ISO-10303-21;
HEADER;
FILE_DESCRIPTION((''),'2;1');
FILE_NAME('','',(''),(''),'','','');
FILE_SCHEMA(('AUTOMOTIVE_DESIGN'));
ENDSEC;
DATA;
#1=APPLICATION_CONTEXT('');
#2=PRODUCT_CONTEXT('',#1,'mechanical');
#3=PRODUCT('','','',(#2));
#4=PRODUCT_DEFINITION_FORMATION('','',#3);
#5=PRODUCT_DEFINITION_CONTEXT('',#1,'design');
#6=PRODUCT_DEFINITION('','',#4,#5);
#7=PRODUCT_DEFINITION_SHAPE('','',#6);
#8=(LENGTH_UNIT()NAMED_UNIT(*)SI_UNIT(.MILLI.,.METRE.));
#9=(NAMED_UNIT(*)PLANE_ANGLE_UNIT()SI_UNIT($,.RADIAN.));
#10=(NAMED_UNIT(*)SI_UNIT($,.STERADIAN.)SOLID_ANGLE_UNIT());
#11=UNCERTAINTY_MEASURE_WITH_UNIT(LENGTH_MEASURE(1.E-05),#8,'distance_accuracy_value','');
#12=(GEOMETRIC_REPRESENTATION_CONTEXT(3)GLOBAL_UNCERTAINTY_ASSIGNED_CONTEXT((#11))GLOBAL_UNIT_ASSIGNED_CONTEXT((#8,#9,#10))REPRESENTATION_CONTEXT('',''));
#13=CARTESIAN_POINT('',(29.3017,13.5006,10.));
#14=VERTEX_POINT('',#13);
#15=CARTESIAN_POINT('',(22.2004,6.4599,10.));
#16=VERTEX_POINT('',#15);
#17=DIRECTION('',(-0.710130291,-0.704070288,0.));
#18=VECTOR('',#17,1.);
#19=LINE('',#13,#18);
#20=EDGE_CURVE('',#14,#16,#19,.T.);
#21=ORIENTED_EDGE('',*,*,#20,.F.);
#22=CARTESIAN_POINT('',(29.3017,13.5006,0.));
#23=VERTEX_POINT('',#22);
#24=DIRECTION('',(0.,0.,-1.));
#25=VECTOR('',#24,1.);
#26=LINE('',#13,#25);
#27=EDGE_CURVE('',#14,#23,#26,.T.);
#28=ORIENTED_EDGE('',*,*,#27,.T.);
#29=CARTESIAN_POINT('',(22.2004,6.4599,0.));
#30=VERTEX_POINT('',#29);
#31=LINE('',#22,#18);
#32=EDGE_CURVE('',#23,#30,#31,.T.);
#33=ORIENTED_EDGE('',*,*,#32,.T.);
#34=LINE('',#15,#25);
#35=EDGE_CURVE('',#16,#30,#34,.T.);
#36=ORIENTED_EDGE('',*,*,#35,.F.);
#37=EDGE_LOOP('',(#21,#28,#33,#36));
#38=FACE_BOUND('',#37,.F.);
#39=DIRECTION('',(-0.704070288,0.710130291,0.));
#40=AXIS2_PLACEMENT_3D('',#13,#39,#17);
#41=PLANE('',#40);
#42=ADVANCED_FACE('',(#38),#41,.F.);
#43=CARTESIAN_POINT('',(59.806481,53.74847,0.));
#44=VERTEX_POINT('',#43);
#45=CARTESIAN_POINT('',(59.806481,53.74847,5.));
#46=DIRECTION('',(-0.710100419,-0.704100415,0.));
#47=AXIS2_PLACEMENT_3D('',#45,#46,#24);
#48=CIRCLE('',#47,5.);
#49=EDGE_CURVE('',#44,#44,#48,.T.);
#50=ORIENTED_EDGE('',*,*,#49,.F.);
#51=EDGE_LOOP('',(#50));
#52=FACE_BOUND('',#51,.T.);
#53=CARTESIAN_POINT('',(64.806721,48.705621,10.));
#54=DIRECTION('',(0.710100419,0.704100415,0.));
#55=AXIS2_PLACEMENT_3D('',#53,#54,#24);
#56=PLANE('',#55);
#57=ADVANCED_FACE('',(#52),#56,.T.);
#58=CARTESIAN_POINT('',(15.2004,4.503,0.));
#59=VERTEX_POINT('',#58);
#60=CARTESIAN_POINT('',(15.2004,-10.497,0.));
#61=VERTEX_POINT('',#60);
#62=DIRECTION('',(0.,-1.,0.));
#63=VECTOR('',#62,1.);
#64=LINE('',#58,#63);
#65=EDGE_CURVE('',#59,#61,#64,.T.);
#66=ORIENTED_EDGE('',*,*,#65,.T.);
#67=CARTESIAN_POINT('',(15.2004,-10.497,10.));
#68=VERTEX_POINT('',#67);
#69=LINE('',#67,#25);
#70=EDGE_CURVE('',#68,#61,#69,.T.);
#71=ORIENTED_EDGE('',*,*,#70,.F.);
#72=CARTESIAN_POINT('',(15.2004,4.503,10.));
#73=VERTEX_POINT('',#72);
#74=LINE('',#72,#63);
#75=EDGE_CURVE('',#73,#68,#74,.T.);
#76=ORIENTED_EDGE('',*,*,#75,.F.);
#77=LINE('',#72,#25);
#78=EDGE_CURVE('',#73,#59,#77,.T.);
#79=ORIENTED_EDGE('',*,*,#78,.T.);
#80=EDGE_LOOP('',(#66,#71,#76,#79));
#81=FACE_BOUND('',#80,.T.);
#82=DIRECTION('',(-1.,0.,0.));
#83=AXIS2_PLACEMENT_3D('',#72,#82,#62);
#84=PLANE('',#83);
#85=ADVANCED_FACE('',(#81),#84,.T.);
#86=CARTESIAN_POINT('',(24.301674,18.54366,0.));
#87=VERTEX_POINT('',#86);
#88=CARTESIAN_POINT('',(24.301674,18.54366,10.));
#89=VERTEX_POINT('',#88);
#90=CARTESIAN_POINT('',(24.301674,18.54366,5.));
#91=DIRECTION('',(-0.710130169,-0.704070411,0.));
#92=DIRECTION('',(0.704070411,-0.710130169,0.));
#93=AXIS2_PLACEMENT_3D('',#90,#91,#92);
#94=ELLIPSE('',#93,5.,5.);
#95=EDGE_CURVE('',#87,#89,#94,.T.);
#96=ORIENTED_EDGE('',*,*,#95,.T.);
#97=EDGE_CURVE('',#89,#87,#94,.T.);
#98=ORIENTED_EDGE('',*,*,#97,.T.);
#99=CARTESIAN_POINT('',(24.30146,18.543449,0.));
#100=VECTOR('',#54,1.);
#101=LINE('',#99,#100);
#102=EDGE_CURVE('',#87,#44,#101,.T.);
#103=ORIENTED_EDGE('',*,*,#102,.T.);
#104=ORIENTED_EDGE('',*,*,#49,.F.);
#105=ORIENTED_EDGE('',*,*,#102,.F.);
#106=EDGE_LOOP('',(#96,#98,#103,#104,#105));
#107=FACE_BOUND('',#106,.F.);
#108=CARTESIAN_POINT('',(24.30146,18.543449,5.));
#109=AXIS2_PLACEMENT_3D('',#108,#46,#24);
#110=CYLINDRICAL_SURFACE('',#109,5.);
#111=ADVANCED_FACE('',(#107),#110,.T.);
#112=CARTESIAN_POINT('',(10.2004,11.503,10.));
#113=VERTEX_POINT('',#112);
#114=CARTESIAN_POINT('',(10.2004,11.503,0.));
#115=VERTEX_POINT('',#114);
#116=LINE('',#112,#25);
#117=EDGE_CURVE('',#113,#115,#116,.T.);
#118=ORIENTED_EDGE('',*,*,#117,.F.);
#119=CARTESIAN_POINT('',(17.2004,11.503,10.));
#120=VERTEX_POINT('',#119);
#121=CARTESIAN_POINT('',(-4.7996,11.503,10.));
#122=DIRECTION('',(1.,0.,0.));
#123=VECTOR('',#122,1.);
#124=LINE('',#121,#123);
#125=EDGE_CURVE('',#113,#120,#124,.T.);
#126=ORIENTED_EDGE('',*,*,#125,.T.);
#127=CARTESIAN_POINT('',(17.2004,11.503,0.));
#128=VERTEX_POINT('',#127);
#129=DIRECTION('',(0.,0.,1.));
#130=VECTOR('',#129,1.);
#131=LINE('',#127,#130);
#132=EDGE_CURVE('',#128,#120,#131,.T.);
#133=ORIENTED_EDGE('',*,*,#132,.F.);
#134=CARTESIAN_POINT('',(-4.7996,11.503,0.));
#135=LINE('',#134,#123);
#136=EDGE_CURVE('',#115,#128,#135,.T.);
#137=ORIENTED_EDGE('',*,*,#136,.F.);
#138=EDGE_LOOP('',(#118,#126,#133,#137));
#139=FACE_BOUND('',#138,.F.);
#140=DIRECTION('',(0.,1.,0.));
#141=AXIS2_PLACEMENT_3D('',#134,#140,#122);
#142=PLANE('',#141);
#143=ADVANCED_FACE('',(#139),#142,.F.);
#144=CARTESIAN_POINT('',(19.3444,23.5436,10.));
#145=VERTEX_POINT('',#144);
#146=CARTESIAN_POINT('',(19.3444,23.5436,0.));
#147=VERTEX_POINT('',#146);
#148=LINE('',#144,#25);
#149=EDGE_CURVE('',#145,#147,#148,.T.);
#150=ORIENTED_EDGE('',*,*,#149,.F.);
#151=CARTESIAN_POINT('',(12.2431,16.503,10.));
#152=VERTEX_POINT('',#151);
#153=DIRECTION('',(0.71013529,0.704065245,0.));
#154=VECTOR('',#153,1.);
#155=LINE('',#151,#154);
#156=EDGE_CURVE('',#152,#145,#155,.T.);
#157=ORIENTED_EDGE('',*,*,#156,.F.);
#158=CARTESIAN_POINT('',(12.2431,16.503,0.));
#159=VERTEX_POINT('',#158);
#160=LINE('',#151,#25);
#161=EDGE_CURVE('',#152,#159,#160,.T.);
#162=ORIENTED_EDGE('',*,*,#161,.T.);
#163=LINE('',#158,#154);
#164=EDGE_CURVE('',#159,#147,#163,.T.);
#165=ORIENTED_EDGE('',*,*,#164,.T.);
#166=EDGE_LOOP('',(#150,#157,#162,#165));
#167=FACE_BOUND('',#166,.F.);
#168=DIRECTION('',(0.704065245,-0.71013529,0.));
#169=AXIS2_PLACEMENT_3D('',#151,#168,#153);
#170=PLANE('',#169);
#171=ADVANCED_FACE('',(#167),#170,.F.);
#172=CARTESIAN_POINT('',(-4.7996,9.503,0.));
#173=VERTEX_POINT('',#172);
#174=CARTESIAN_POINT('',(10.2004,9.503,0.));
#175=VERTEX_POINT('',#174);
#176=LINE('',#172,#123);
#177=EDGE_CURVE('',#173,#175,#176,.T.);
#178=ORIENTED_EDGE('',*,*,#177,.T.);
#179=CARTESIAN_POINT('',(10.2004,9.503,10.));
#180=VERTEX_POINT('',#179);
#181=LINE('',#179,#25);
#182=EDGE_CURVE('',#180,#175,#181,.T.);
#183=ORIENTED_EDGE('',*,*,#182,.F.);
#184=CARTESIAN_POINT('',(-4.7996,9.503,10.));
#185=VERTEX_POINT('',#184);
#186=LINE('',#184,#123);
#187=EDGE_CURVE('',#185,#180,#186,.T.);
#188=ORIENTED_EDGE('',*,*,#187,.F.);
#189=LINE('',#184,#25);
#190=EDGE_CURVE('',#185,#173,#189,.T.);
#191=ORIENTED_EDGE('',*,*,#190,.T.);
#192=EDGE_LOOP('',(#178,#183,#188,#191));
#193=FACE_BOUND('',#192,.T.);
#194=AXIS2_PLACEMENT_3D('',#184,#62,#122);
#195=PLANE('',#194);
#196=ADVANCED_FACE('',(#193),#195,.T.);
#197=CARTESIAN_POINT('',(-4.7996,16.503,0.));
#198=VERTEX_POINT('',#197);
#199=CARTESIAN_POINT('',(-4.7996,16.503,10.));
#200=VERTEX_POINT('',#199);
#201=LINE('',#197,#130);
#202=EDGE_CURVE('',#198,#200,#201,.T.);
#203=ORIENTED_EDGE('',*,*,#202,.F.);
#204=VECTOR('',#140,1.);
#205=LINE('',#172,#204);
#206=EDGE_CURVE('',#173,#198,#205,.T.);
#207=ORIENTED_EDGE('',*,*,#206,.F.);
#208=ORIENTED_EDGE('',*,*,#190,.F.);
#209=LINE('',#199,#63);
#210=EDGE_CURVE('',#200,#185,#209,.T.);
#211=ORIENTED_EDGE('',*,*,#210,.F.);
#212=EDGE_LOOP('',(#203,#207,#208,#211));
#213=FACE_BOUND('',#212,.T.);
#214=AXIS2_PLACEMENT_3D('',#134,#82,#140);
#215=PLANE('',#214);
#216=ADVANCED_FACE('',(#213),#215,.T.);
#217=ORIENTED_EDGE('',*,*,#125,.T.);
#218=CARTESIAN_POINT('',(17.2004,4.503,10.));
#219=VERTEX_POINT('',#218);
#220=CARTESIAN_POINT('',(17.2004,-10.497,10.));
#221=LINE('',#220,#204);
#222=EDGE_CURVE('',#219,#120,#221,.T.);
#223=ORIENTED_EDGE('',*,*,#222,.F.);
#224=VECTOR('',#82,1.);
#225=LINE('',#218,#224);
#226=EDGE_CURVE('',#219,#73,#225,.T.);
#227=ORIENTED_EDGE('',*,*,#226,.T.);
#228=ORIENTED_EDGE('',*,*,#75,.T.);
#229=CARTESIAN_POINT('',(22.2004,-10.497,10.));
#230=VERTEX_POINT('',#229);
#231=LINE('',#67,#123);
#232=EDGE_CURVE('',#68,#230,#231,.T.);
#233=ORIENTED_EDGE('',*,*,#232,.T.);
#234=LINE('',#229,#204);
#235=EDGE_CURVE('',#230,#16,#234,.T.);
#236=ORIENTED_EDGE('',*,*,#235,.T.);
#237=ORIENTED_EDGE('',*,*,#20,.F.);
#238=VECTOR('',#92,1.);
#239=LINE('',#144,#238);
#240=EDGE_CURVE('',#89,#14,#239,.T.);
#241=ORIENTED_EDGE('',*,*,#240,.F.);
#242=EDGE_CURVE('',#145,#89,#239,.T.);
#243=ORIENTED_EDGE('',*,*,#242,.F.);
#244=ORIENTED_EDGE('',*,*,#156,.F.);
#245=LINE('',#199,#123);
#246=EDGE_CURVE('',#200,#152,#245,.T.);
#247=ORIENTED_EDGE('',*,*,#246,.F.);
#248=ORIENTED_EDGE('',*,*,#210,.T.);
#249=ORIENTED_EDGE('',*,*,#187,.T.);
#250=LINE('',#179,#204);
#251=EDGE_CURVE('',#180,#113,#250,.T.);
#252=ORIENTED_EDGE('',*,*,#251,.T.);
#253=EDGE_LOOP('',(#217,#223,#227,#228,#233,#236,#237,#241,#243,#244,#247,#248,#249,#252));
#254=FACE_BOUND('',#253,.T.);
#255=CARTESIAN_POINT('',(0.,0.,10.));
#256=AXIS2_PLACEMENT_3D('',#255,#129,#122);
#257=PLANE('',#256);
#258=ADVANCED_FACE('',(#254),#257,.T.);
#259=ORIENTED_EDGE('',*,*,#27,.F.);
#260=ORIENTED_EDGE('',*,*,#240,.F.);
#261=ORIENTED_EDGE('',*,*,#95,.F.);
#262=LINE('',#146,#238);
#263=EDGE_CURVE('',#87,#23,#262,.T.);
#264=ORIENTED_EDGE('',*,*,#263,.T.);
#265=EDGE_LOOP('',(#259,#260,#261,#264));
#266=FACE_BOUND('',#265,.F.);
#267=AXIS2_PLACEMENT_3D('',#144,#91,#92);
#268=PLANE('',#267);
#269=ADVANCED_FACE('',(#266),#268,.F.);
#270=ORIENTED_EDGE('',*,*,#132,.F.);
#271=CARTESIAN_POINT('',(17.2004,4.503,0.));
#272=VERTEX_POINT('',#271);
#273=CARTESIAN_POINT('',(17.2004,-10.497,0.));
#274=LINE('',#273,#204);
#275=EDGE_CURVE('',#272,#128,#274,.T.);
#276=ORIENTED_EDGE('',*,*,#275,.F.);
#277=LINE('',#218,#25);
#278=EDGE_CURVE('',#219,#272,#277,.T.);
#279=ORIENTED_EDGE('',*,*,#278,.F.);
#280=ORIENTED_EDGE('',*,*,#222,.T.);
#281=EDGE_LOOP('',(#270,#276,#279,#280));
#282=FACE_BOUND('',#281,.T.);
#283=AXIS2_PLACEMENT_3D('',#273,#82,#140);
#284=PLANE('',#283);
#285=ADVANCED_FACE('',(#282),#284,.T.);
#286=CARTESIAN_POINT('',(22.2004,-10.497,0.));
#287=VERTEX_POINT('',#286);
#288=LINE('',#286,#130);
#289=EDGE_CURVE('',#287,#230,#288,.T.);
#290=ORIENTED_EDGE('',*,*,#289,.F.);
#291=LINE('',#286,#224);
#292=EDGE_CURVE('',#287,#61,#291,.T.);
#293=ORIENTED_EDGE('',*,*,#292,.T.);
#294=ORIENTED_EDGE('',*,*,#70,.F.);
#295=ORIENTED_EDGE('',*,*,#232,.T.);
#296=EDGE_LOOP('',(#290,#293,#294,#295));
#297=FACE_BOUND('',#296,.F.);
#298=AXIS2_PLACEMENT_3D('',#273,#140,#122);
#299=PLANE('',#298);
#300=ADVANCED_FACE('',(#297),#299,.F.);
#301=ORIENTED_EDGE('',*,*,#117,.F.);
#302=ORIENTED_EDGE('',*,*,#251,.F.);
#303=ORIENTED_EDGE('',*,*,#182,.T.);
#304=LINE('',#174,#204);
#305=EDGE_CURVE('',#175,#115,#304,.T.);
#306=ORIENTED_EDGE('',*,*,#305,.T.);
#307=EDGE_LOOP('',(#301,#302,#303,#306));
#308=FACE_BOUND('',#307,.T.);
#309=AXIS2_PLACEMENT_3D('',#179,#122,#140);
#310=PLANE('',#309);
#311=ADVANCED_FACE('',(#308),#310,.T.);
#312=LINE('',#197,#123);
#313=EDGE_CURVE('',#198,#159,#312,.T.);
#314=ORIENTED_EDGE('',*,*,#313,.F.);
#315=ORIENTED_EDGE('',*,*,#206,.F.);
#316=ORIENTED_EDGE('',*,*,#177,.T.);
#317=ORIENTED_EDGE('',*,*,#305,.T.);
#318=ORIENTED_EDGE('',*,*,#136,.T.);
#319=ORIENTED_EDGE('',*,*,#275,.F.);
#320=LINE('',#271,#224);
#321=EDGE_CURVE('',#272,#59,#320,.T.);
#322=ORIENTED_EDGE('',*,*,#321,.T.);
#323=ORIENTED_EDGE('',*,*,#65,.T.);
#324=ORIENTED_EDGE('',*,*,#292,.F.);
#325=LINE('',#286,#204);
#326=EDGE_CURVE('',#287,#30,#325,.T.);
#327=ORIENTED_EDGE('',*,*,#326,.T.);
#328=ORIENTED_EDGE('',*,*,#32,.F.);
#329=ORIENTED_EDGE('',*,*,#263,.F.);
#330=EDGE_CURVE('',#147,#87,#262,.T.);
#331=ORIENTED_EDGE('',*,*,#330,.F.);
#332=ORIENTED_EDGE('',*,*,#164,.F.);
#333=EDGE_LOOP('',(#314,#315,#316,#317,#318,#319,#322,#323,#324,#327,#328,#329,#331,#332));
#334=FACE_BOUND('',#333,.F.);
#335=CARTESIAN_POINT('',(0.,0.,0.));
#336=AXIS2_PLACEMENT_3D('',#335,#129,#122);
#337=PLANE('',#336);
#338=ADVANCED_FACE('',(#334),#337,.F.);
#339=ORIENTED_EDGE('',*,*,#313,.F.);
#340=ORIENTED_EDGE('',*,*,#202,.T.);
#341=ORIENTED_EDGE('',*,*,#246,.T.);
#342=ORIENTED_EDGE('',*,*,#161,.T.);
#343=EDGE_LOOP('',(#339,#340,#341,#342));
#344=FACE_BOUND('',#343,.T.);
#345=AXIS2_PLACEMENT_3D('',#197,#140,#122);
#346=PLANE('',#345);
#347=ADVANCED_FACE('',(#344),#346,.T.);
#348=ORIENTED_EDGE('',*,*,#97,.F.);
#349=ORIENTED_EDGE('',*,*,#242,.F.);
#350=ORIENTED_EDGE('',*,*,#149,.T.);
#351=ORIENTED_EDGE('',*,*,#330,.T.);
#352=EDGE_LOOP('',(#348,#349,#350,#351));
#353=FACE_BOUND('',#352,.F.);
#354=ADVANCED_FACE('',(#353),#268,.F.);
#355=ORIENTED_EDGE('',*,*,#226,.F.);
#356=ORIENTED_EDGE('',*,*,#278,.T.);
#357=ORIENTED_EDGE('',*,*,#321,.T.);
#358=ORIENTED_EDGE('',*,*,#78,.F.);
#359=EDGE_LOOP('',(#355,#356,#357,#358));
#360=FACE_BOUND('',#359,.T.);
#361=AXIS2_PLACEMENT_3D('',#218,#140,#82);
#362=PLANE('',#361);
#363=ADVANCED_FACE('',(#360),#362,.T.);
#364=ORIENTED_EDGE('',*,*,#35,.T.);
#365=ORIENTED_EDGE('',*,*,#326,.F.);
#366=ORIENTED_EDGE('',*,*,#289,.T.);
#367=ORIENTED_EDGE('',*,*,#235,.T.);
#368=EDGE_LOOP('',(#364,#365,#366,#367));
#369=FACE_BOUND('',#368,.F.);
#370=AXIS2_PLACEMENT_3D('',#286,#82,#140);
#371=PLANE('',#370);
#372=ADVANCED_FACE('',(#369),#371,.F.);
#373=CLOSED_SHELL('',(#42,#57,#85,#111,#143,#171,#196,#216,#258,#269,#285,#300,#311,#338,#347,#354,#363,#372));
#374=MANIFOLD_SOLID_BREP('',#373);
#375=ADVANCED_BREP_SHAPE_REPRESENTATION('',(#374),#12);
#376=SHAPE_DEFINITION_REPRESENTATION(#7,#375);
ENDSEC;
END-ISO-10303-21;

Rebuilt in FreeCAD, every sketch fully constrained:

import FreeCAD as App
import Part
import Sketcher

doc = App.newDocument("Part")
body = doc.addObject("PartDesign::Body", "Body")

sketch1 = body.newObject("Sketcher::SketchObject", "Sketch")
sketch1.AttachmentSupport = (doc.getObject("XY_Plane"), [""])
sketch1.MapMode = "FlatFace"
sketch1.addGeometry([
    Part.LineSegment(App.Vector(17, 12, 0), App.Vector(17, -10, 0)),
    Part.LineSegment(App.Vector(17, -10, 0), App.Vector(22, -10, 0)),
    Part.LineSegment(App.Vector(22, -10, 0), App.Vector(22, 17, 0)),
    Part.LineSegment(App.Vector(22, 17, 0), App.Vector(-5, 17, 0)),
    Part.LineSegment(App.Vector(-5, 17, 0), App.Vector(-5, 12, 0)),
    Part.LineSegment(App.Vector(-5, 12, 0), App.Vector(17, 12, 0)),
], False)
sketch1.addConstraint([
    Sketcher.Constraint("Coincident", 0, 2, 1, 1),
    Sketcher.Constraint("Coincident", 1, 2, 2, 1),
    Sketcher.Constraint("Coincident", 2, 2, 3, 1),
    Sketcher.Constraint("Coincident", 3, 2, 4, 1),
    Sketcher.Constraint("Coincident", 4, 2, 5, 1),
    Sketcher.Constraint("Coincident", 5, 2, 0, 1),
    Sketcher.Constraint("Vertical", 0),
    Sketcher.Constraint("Horizontal", 1),
    Sketcher.Constraint("Vertical", 2),
    Sketcher.Constraint("Horizontal", 3),
    Sketcher.Constraint("Vertical", 4),
    Sketcher.Constraint("Horizontal", 5),
    Sketcher.Constraint("Equal", 5, 0),
    Sketcher.Constraint("Equal", 3, 2),
    Sketcher.Constraint("DistanceX", 1, 1, 1, 2, 5.0),
    Sketcher.Constraint("DistanceX", 3, 2, 3, 1, 27.0),
    Sketcher.Constraint("DistanceY", 0, 2, -1, 1, 10.497),
    Sketcher.Constraint("DistanceX", -1, 1, 0, 2, 17.2004),
])
pad1 = body.newObject("PartDesign::Pad", "Pad")
pad1.Profile = sketch1
pad1.Length = 10

sketch2 = body.newObject("Sketcher::SketchObject", "Sketch001")
sketch2.AttachmentSupport = (doc.getObject("XY_Plane"), [""])
sketch2.MapMode = "FlatFace"
sketch2.AttachmentOffset = App.Placement(App.Vector(0, 0, 10), App.Rotation())
sketch2.addGeometry([
    Part.LineSegment(App.Vector(22, 17, 0), App.Vector(22, 6, 0)),
    Part.LineSegment(App.Vector(22, 6, 0), App.Vector(29, 14, 0)),
    Part.LineSegment(App.Vector(29, 14, 0), App.Vector(19, 24, 0)),
    Part.LineSegment(App.Vector(19, 24, 0), App.Vector(12, 17, 0)),
    Part.LineSegment(App.Vector(12, 17, 0), App.Vector(22, 17, 0)),
], False)
sketch2.addConstraint([
    Sketcher.Constraint("Coincident", 0, 2, 1, 1),
    Sketcher.Constraint("Coincident", 1, 2, 2, 1),
    Sketcher.Constraint("Coincident", 2, 2, 3, 1),
    Sketcher.Constraint("Coincident", 3, 2, 4, 1),
    Sketcher.Constraint("Coincident", 4, 2, 0, 1),
    Sketcher.Constraint("Vertical", 0),
    Sketcher.Constraint("Horizontal", 4),
    Sketcher.Constraint("Perpendicular", 1, 2),
    Sketcher.Constraint("Perpendicular", 2, 3),
    Sketcher.Constraint("Equal", 1, 3),
    Sketcher.Constraint("Distance", 1, 10.0),
    Sketcher.Constraint("DistanceY", 0, 2, 0, 1, 10.043),
    Sketcher.Constraint("DistanceY", -1, 1, 0, 2, 6.46),
    Sketcher.Constraint("DistanceX", 4, 1, 4, 2, 9.9573),
    Sketcher.Constraint("DistanceX", -1, 1, 3, 2, 12.243),
])
pad2 = body.newObject("PartDesign::Pad", "Pad001")
pad2.Profile = sketch2
pad2.Length = 10
pad2.Reversed = True

sketch3 = body.newObject("Sketcher::SketchObject", "Sketch002")
sketch3.Placement = App.Placement(App.Vector(29.3017, 13.5006, 10), App.Rotation(App.Vector(0, 0, -1), App.Vector(-0.704100415, 0.710100419, 0), App.Vector(0.710100419, 0.704100415, 0), "ZXY"))
sketch3.addGeometry(Part.Circle(App.Vector(5, 7, 0), App.Vector(0, 0, 1), 5), False)
sketch3.addConstraint([
    Sketcher.Constraint("Diameter", 0, 10.0),
    Sketcher.Constraint("DistanceX", -1, 1, 0, 3, 5.0),
    Sketcher.Constraint("DistanceY", -1, 1, 0, 3, 7.1016),
])
pad3 = body.newObject("PartDesign::Pad", "Pad002")
pad3.Profile = sketch3
pad3.Length = 50

sketch4 = body.newObject("Sketcher::SketchObject", "Sketch003")
sketch4.AttachmentSupport = (doc.getObject("XY_Plane"), [""])
sketch4.MapMode = "FlatFace"
sketch4.AttachmentOffset = App.Placement(App.Vector(0, 0, 10), App.Rotation())
sketch4.addGeometry([
    Part.LineSegment(App.Vector(17.2, -10.5, 0), App.Vector(17.2, 4.5, 0)),
    Part.LineSegment(App.Vector(17.2, 4.5, 0), App.Vector(15.2, 4.5, 0)),
    Part.LineSegment(App.Vector(15.2, 4.5, 0), App.Vector(15.2, -10.5, 0)),
    Part.LineSegment(App.Vector(15.2, -10.5, 0), App.Vector(17.2, -10.5, 0)),
    Part.LineSegment(App.Vector(10.2, 9.5, 0), App.Vector(10.2, 11.5, 0)),
    Part.LineSegment(App.Vector(10.2, 11.5, 0), App.Vector(-4.8, 11.5, 0)),
    Part.LineSegment(App.Vector(-4.8, 11.5, 0), App.Vector(-4.8, 9.5, 0)),
    Part.LineSegment(App.Vector(-4.8, 9.5, 0), App.Vector(10.2, 9.5, 0)),
], False)
sketch4.addConstraint([
    Sketcher.Constraint("Coincident", 0, 2, 1, 1),
    Sketcher.Constraint("Coincident", 1, 2, 2, 1),
    Sketcher.Constraint("Coincident", 2, 2, 3, 1),
    Sketcher.Constraint("Coincident", 3, 2, 0, 1),
    Sketcher.Constraint("Coincident", 4, 2, 5, 1),
    Sketcher.Constraint("Coincident", 5, 2, 6, 1),
    Sketcher.Constraint("Coincident", 6, 2, 7, 1),
    Sketcher.Constraint("Coincident", 7, 2, 4, 1),
    Sketcher.Constraint("Vertical", 0),
    Sketcher.Constraint("Horizontal", 1),
    Sketcher.Constraint("Vertical", 2),
    Sketcher.Constraint("Horizontal", 3),
    Sketcher.Constraint("Vertical", 4),
    Sketcher.Constraint("Horizontal", 5),
    Sketcher.Constraint("Vertical", 6),
    Sketcher.Constraint("Horizontal", 7),
    Sketcher.Constraint("Equal", 7, 0),
    Sketcher.Constraint("Equal", 3, 4),
    Sketcher.Constraint("DistanceX", 1, 2, 1, 1, 2.0),
    Sketcher.Constraint("DistanceX", 5, 2, 5, 1, 15.0),
    Sketcher.Constraint("DistanceX", 4, 2, 1, 2, 5.0),
    Sketcher.Constraint("DistanceY", 1, 2, 4, 2, 7.0),
    Sketcher.Constraint("DistanceY", -1, 1, 0, 2, 4.503),
    Sketcher.Constraint("DistanceX", -1, 1, 0, 2, 17.2004),
])
pad4 = body.newObject("PartDesign::Pad", "Pad003")
pad4.Profile = sketch4
pad4.Length = 10
pad4.Reversed = True

doc.recompute()
